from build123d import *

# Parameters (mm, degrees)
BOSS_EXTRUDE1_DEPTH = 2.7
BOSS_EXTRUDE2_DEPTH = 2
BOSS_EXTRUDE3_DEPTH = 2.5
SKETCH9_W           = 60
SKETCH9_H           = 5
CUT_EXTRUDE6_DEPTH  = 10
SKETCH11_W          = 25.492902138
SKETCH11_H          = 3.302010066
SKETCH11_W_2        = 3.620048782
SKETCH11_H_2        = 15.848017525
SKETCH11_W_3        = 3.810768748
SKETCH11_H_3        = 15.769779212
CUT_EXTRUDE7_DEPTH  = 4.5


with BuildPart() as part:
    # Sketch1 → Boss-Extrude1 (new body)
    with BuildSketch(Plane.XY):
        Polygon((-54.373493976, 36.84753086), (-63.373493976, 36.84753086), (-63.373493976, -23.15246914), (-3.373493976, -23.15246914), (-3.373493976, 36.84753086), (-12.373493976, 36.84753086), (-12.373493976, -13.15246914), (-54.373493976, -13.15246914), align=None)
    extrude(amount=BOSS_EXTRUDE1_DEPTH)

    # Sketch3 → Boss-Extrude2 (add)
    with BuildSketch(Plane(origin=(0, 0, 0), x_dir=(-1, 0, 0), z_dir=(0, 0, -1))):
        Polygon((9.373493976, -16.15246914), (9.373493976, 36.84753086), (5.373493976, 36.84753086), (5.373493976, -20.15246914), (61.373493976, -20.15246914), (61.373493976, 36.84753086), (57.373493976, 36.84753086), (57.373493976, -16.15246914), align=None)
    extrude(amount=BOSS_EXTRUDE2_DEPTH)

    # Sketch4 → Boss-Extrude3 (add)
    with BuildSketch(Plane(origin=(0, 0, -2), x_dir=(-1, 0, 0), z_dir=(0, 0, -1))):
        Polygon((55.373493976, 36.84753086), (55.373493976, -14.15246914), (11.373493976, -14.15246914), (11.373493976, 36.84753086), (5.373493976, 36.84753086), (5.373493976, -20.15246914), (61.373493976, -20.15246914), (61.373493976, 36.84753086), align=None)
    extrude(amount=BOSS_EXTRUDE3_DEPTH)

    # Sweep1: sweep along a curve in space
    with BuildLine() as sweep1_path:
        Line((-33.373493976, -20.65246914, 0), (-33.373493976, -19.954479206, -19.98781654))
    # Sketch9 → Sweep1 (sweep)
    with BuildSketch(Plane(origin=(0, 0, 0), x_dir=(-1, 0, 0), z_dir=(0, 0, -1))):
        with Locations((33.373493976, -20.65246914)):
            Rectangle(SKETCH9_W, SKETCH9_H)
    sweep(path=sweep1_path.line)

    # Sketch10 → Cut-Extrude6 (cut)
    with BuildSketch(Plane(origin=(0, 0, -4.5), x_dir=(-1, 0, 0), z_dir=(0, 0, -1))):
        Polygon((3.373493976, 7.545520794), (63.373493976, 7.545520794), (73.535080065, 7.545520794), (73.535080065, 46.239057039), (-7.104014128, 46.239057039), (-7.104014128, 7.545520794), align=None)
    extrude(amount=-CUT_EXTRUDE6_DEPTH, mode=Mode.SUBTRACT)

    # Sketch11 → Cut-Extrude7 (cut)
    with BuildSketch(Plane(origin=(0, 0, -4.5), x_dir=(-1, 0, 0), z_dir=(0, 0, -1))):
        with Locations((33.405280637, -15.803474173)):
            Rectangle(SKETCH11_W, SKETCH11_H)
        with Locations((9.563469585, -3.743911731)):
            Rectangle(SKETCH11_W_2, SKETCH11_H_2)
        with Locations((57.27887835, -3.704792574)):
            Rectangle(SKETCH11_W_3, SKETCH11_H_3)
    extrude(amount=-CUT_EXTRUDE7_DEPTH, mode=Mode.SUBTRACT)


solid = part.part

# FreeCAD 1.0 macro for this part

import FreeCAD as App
import Part
import Sketcher
Q = App.Units.Quantity

doc = App.newDocument("Part")
body = doc.addObject("PartDesign::Body", "Body")

# Sketch on XY plane
sketch1 = body.newObject("Sketcher::SketchObject", "Sketch")
sketch1.AttachmentSupport = (doc.getObject("XY_Plane"), [""])
sketch1.MapMode = "FlatFace"
sketch1.addGeometry([
    Part.LineSegment(App.Vector(-54, 37, 0), App.Vector(-63, 37, 0)),  # 0
    Part.LineSegment(App.Vector(-63, 37, 0), App.Vector(-63, -23, 0)),  # 1
    Part.LineSegment(App.Vector(-63, -23, 0), App.Vector(-3, -23, 0)),  # 2
    Part.LineSegment(App.Vector(-3, -23, 0), App.Vector(-3, 37, 0)),  # 3
    Part.LineSegment(App.Vector(-3, 37, 0), App.Vector(-12, 37, 0)),  # 4
    Part.LineSegment(App.Vector(-12, 37, 0), App.Vector(-12, -13, 0)),  # 5
    Part.LineSegment(App.Vector(-12, -13, 0), App.Vector(-54, -13, 0)),  # 6
    Part.LineSegment(App.Vector(-54, -13, 0), App.Vector(-54, 37, 0)),  # 7
], False)
sketch1.addConstraint([
    Sketcher.Constraint("Coincident", 0, 2, 1, 1),
    Sketcher.Constraint("Coincident", 1, 2, 2, 1),
    Sketcher.Constraint("Coincident", 2, 2, 3, 1),
    Sketcher.Constraint("Coincident", 3, 2, 4, 1),
    Sketcher.Constraint("Coincident", 4, 2, 5, 1),
    Sketcher.Constraint("Coincident", 5, 2, 6, 1),
    Sketcher.Constraint("Coincident", 6, 2, 7, 1),
    Sketcher.Constraint("Coincident", 7, 2, 0, 1),
    Sketcher.Constraint("Horizontal", 0),
    Sketcher.Constraint("Vertical", 1),
    Sketcher.Constraint("Horizontal", 2),
    Sketcher.Constraint("Vertical", 3),
    Sketcher.Constraint("Horizontal", 4),
    Sketcher.Constraint("Vertical", 5),
    Sketcher.Constraint("Horizontal", 6),
    Sketcher.Constraint("Vertical", 7),
    Sketcher.Constraint("Horizontal", 0, 2, 3, 2),
    Sketcher.Constraint("Equal", 0, 4),
    Sketcher.Constraint("Equal", 2, 1),
    Sketcher.Constraint("DistanceX", 0, 2, 0, 1, Q("9 mm")),
    Sketcher.Constraint("DistanceX", 2, 1, 2, 2, Q("60 mm")),
    Sketcher.Constraint("DistanceY", 5, 2, 5, 1, Q("50 mm")),
    Sketcher.Constraint("DistanceY", -1, 1, 0, 2, Q("36.847531 mm")),
    Sketcher.Constraint("DistanceX", 0, 2, -1, 1, Q("63.373494 mm")),
])
pad1 = body.newObject("PartDesign::Pad", "Pad")
pad1.Profile = sketch1
pad1.Length = 2.7

# Sketch on XY plane
sketch2 = body.newObject("Sketcher::SketchObject", "Sketch001")
sketch2.AttachmentSupport = (doc.getObject("XY_Plane"), [""])
sketch2.MapMode = "FlatFace"
sketch2.addGeometry([
    Part.LineSegment(App.Vector(-9.4, -16.2, 0), App.Vector(-9.4, 36.8, 0)),  # 0
    Part.LineSegment(App.Vector(-9.4, 36.8, 0), App.Vector(-5.4, 36.8, 0)),  # 1
    Part.LineSegment(App.Vector(-5.4, 36.8, 0), App.Vector(-5.4, -20.2, 0)),  # 2
    Part.LineSegment(App.Vector(-5.4, -20.2, 0), App.Vector(-61.4, -20.2, 0)),  # 3
    Part.LineSegment(App.Vector(-61.4, -20.2, 0), App.Vector(-61.4, 36.8, 0)),  # 4
    Part.LineSegment(App.Vector(-61.4, 36.8, 0), App.Vector(-57.4, 36.8, 0)),  # 5
    Part.LineSegment(App.Vector(-57.4, 36.8, 0), App.Vector(-57.4, -16.2, 0)),  # 6
    Part.LineSegment(App.Vector(-57.4, -16.2, 0), App.Vector(-9.4, -16.2, 0)),  # 7
], False)
sketch2.addConstraint([
    Sketcher.Constraint("Coincident", 0, 2, 1, 1),
    Sketcher.Constraint("Coincident", 1, 2, 2, 1),
    Sketcher.Constraint("Coincident", 2, 2, 3, 1),
    Sketcher.Constraint("Coincident", 3, 2, 4, 1),
    Sketcher.Constraint("Coincident", 4, 2, 5, 1),
    Sketcher.Constraint("Coincident", 5, 2, 6, 1),
    Sketcher.Constraint("Coincident", 6, 2, 7, 1),
    Sketcher.Constraint("Coincident", 7, 2, 0, 1),
    Sketcher.Constraint("Vertical", 0),
    Sketcher.Constraint("Horizontal", 1),
    Sketcher.Constraint("Vertical", 2),
    Sketcher.Constraint("Horizontal", 3),
    Sketcher.Constraint("Vertical", 4),
    Sketcher.Constraint("Horizontal", 5),
    Sketcher.Constraint("Vertical", 6),
    Sketcher.Constraint("Horizontal", 7),
    Sketcher.Constraint("Horizontal", 1, 2, 4, 2),
    Sketcher.Constraint("Equal", 1, 5),
    Sketcher.Constraint("DistanceX", 1, 1, 1, 2, Q("4 mm")),
    Sketcher.Constraint("DistanceX", 3, 2, 3, 1, Q("56 mm")),
    Sketcher.Constraint("DistanceY", 0, 1, 0, 2, Q("53 mm")),
    Sketcher.Constraint("DistanceY", 2, 2, 2, 1, Q("57 mm")),
    Sketcher.Constraint("DistanceY", -1, 1, 0, 2, Q("36.847531 mm")),
    Sketcher.Constraint("DistanceX", 0, 2, -1, 1, Q("9.373494 mm")),
])
pad2 = body.newObject("PartDesign::Pad", "Pad001")
pad2.Profile = sketch2
pad2.Length = 2
pad2.Reversed = True

# Sketch on XY plane
sketch3 = body.newObject("Sketcher::SketchObject", "Sketch002")
sketch3.AttachmentSupport = (doc.getObject("XY_Plane"), [""])
sketch3.MapMode = "FlatFace"
sketch3.AttachmentOffset = App.Placement(App.Vector(0, 0, -2), App.Rotation())
sketch3.addGeometry([
    Part.LineSegment(App.Vector(-55, 37, 0), App.Vector(-55, -14, 0)),  # 0
    Part.LineSegment(App.Vector(-55, -14, 0), App.Vector(-11, -14, 0)),  # 1
    Part.LineSegment(App.Vector(-11, -14, 0), App.Vector(-11, 37, 0)),  # 2
    Part.LineSegment(App.Vector(-11, 37, 0), App.Vector(-5, 37, 0)),  # 3
    Part.LineSegment(App.Vector(-5, 37, 0), App.Vector(-5, -20, 0)),  # 4
    Part.LineSegment(App.Vector(-5, -20, 0), App.Vector(-61, -20, 0)),  # 5
    Part.LineSegment(App.Vector(-61, -20, 0), App.Vector(-61, 37, 0)),  # 6
    Part.LineSegment(App.Vector(-61, 37, 0), App.Vector(-55, 37, 0)),  # 7
], False)
sketch3.addConstraint([
    Sketcher.Constraint("Coincident", 0, 2, 1, 1),
    Sketcher.Constraint("Coincident", 1, 2, 2, 1),
    Sketcher.Constraint("Coincident", 2, 2, 3, 1),
    Sketcher.Constraint("Coincident", 3, 2, 4, 1),
    Sketcher.Constraint("Coincident", 4, 2, 5, 1),
    Sketcher.Constraint("Coincident", 5, 2, 6, 1),
    Sketcher.Constraint("Coincident", 6, 2, 7, 1),
    Sketcher.Constraint("Coincident", 7, 2, 0, 1),
    Sketcher.Constraint("Vertical", 0),
    Sketcher.Constraint("Horizontal", 1),
    Sketcher.Constraint("Vertical", 2),
    Sketcher.Constraint("Horizontal", 3),
    Sketcher.Constraint("Vertical", 4),
    Sketcher.Constraint("Horizontal", 5),
    Sketcher.Constraint("Vertical", 6),
    Sketcher.Constraint("Horizontal", 7),
    Sketcher.Constraint("Horizontal", 3, 2, 6, 2),
    Sketcher.Constraint("Equal", 3, 7),
    Sketcher.Constraint("DistanceX", 1, 1, 1, 2, Q("44 mm")),
    Sketcher.Constraint("DistanceX", 3, 1, 3, 2, Q("6 mm")),
    Sketcher.Constraint("DistanceY", 0, 2, 0, 1, Q("51 mm")),
    Sketcher.Constraint("DistanceY", 4, 2, 4, 1, Q("57 mm")),
    Sketcher.Constraint("DistanceY", 0, 2, -1, 1, Q("14.152469 mm")),
    Sketcher.Constraint("DistanceX", 0, 2, -1, 1, Q("55.373494 mm")),
])
pad3 = body.newObject("PartDesign::Pad", "Pad002")
pad3.Profile = sketch3
pad3.Length = 2.5
pad3.Reversed = True

# Sketch on XY plane
sketch4 = body.newObject("Sketcher::SketchObject", "Sketch003")
sketch4.AttachmentSupport = (doc.getObject("XY_Plane"), [""])
sketch4.MapMode = "FlatFace"
sketch4.addGeometry([
    Part.LineSegment(App.Vector(-3, -18, 0), App.Vector(-3, -23, 0)),
    Part.LineSegment(App.Vector(-3, -23, 0), App.Vector(-63, -23, 0)),
    Part.LineSegment(App.Vector(-63, -23, 0), App.Vector(-63, -18, 0)),
    Part.LineSegment(App.Vector(-63, -18, 0), App.Vector(-3, -18, 0)),
], False)
sketch4.addConstraint([
    Sketcher.Constraint("Coincident", 0, 2, 1, 1),
    Sketcher.Constraint("Coincident", 1, 2, 2, 1),
    Sketcher.Constraint("Coincident", 2, 2, 3, 1),
    Sketcher.Constraint("Coincident", 3, 2, 0, 1),
    Sketcher.Constraint("Vertical", 0),
    Sketcher.Constraint("Horizontal", 1),
    Sketcher.Constraint("Vertical", 2),
    Sketcher.Constraint("Horizontal", 3),
    Sketcher.Constraint("DistanceX", 1, 2, 1, 1, Q("60 mm")),
    Sketcher.Constraint("DistanceY", 0, 2, 0, 1, Q("5 mm")),
    Sketcher.Constraint("DistanceY", 0, 2, -1, 1, Q("23.152469 mm")),
    Sketcher.Constraint("DistanceX", 0, 2, -1, 1, Q("3.373494 mm")),
])

# Sketch on an angled plane
sketch5 = body.newObject("Sketcher::SketchObject", "Sketch004")
sketch5.Placement = App.Placement(App.Vector(0, -20.627315, -0.720322), App.Rotation(App.Vector(0, -0.034899497, 0.999390827), App.Vector(1, 0, 0), App.Vector(0, 0.999390827, 0.034899497), "ZXY"))
sketch5.addGeometry(Part.LineSegment(App.Vector(1, -33, 0), App.Vector(-19, -33, 0)), False)
sketch5.addConstraint([
    Sketcher.Constraint("Horizontal", 0),
    Sketcher.Constraint("DistanceX", 0, 2, 0, 1, Q("20 mm")),
    Sketcher.Constraint("DistanceX", -1, 1, 0, 1, Q("0.720761 mm")),
    Sketcher.Constraint("DistanceY", 0, 1, -1, 1, Q("33.373494 mm")),
])
doc.recompute()

additivepipe = body.newObject("PartDesign::AdditivePipe", "AdditivePipe")
additivepipe.Profile = sketch4
additivepipe.Spine = (sketch5, ["Edge1"])

# Sketch on XY plane
sketch6 = body.newObject("Sketcher::SketchObject", "Sketch005")
sketch6.AttachmentSupport = (doc.getObject("XY_Plane"), [""])
sketch6.MapMode = "FlatFace"
sketch6.AttachmentOffset = App.Placement(App.Vector(0, 0, -4.5), App.Rotation())
sketch6.addGeometry([
    Part.LineSegment(App.Vector(-74, 8, 0), App.Vector(-74, 46, 0)),
    Part.LineSegment(App.Vector(-74, 46, 0), App.Vector(7, 46, 0)),
    Part.LineSegment(App.Vector(7, 46, 0), App.Vector(7, 8, 0)),
    Part.LineSegment(App.Vector(7, 8, 0), App.Vector(-74, 8, 0)),
], False)
sketch6.addConstraint([
    Sketcher.Constraint("Coincident", 0, 2, 1, 1),
    Sketcher.Constraint("Coincident", 1, 2, 2, 1),
    Sketcher.Constraint("Coincident", 2, 2, 3, 1),
    Sketcher.Constraint("Coincident", 3, 2, 0, 1),
    Sketcher.Constraint("Vertical", 0),
    Sketcher.Constraint("Horizontal", 1),
    Sketcher.Constraint("Vertical", 2),
    Sketcher.Constraint("Horizontal", 3),
    Sketcher.Constraint("DistanceX", 1, 1, 1, 2, Q("80.639094 mm")),
    Sketcher.Constraint("DistanceY", 0, 1, 0, 2, Q("38.693536 mm")),
    Sketcher.Constraint("DistanceX", 0, 2, -1, 1, Q("73.53508 mm")),
    Sketcher.Constraint("DistanceY", -1, 1, 2, 2, Q("7.545521 mm")),
])
pocket1 = body.newObject("PartDesign::Pocket", "Pocket")
pocket1.Profile = sketch6
pocket1.Length = 10
pocket1.Reversed = True

# Sketch on XY plane
sketch7 = body.newObject("Sketcher::SketchObject", "Sketch006")
sketch7.AttachmentSupport = (doc.getObject("XY_Plane"), [""])
sketch7.MapMode = "FlatFace"
sketch7.AttachmentOffset = App.Placement(App.Vector(0, 0, -4.5), App.Rotation())
sketch7.addGeometry([
    Part.LineSegment(App.Vector(-20.7, -14.2, 0), App.Vector(-20.7, -17.5, 0)),  # 0
    Part.LineSegment(App.Vector(-20.7, -17.5, 0), App.Vector(-46.2, -17.5, 0)),  # 1
    Part.LineSegment(App.Vector(-46.2, -17.5, 0), App.Vector(-46.2, -14.2, 0)),  # 2
    Part.LineSegment(App.Vector(-46.2, -14.2, 0), App.Vector(-20.7, -14.2, 0)),  # 3
    Part.LineSegment(App.Vector(-7.8, 4.2, 0), App.Vector(-7.8, -11.7, 0)),  # 4
    Part.LineSegment(App.Vector(-7.8, -11.7, 0), App.Vector(-11.4, -11.7, 0)),  # 5
    Part.LineSegment(App.Vector(-11.4, -11.7, 0), App.Vector(-11.4, 4.2, 0)),  # 6
    Part.LineSegment(App.Vector(-11.4, 4.2, 0), App.Vector(-7.8, 4.2, 0)),  # 7
    Part.LineSegment(App.Vector(-55.4, 4.2, 0), App.Vector(-55.4, -11.6, 0)),  # 8
    Part.LineSegment(App.Vector(-55.4, -11.6, 0), App.Vector(-59.2, -11.6, 0)),  # 9
    Part.LineSegment(App.Vector(-59.2, -11.6, 0), App.Vector(-59.2, 4.2, 0)),  # 10
    Part.LineSegment(App.Vector(-59.2, 4.2, 0), App.Vector(-55.4, 4.2, 0)),  # 11
], False)
sketch7.addConstraint([
    Sketcher.Constraint("Coincident", 0, 2, 1, 1),
    Sketcher.Constraint("Coincident", 1, 2, 2, 1),
    Sketcher.Constraint("Coincident", 2, 2, 3, 1),
    Sketcher.Constraint("Coincident", 3, 2, 0, 1),
    Sketcher.Constraint("Coincident", 4, 2, 5, 1),
    Sketcher.Constraint("Coincident", 5, 2, 6, 1),
    Sketcher.Constraint("Coincident", 6, 2, 7, 1),
    Sketcher.Constraint("Coincident", 7, 2, 4, 1),
    Sketcher.Constraint("Coincident", 8, 2, 9, 1),
    Sketcher.Constraint("Coincident", 9, 2, 10, 1),
    Sketcher.Constraint("Coincident", 10, 2, 11, 1),
    Sketcher.Constraint("Coincident", 11, 2, 8, 1),
    Sketcher.Constraint("Vertical", 0),
    Sketcher.Constraint("Horizontal", 1),
    Sketcher.Constraint("Vertical", 2),
    Sketcher.Constraint("Horizontal", 3),
    Sketcher.Constraint("Vertical", 4),
    Sketcher.Constraint("Horizontal", 5),
    Sketcher.Constraint("Vertical", 6),
    Sketcher.Constraint("Horizontal", 7),
    Sketcher.Constraint("Vertical", 8),
    Sketcher.Constraint("Horizontal", 9),
    Sketcher.Constraint("Vertical", 10),
    Sketcher.Constraint("Horizontal", 11),
    Sketcher.Constraint("Horizontal", 7, 2, 10, 2),
    Sketcher.Constraint("DistanceX", 8, 2, 5, 2, Q("44 mm")),
    Sketcher.Constraint("DistanceX", 5, 2, 5, 1, Q("3.620049 mm")),
    Sketcher.Constraint("DistanceX", 9, 2, 9, 1, Q("3.810769 mm")),
    Sketcher.Constraint("DistanceY", 0, 2, 0, 1, Q("3.30201 mm")),
    Sketcher.Constraint("DistanceY", 8, 2, 8, 1, Q("15.769779 mm")),
    Sketcher.Constraint("DistanceX", 1, 2, 1, 1, Q("25.492902 mm")),
    Sketcher.Constraint("DistanceY", 4, 2, 4, 1, Q("15.848018 mm")),
    Sketcher.Constraint("DistanceX", 0, 2, -1, 1, Q("20.65883 mm")),
    Sketcher.Constraint("DistanceY", 0, 2, -1, 1, Q("17.454479 mm")),
    Sketcher.Constraint("DistanceY", 4, 2, -1, 1, Q("11.66792 mm")),
    Sketcher.Constraint("DistanceX", 9, 2, 2, 2, Q("13.032531 mm")),
])
pocket2 = body.newObject("PartDesign::Pocket", "Pocket001")
pocket2.Profile = sketch7
pocket2.Length = 4.5
pocket2.Reversed = True

doc.recompute()
